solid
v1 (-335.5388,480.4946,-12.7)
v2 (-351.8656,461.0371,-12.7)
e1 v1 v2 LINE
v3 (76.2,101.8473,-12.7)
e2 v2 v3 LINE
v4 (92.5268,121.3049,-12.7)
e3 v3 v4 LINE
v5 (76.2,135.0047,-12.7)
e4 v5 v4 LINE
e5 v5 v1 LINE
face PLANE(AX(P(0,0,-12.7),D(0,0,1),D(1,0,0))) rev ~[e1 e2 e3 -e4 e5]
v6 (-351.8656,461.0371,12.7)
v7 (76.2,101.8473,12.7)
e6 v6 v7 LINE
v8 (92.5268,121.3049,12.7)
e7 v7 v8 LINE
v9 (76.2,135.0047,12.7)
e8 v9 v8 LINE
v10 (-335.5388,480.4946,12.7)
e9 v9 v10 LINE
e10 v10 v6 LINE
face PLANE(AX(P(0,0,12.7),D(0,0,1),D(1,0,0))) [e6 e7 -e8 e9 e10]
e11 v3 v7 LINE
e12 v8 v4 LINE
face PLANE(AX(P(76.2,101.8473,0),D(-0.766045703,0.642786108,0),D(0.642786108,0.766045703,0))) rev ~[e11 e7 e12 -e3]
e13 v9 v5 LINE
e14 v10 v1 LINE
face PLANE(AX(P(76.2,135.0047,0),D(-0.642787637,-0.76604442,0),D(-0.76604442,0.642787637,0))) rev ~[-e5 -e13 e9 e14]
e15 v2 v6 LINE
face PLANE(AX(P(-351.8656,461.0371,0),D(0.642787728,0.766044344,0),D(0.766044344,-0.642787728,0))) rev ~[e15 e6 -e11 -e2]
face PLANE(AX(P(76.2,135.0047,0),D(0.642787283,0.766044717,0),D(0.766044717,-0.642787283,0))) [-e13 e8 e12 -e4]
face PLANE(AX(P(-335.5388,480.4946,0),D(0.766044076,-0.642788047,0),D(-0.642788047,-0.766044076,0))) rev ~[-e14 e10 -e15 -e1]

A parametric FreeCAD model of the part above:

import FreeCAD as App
import Part
import Sketcher
Q = App.Units.Quantity

doc = App.newDocument("Part")
body = doc.addObject("PartDesign::Body", "Body")

sketch1 = doc.addObject("Sketcher::SketchObject", "Sketch")
body.addObject(sketch1)
sketch1.AttachmentSupport = (doc.XY_Plane, [""])
sketch1.MapMode = "FlatFace"
sketch1.addGeometry([
    Part.LineSegment(App.Vector(-336, 480, 0), App.Vector(-352, 461, 0)),
    Part.LineSegment(App.Vector(-352, 461, 0), App.Vector(76, 102, 0)),
    Part.LineSegment(App.Vector(76, 102, 0), App.Vector(93, 121, 0)),
    Part.LineSegment(App.Vector(93, 121, 0), App.Vector(76, 135, 0)),
    Part.LineSegment(App.Vector(76, 135, 0), App.Vector(-336, 480, 0)),
], False)
sketch1.addConstraint([
    Sketcher.Constraint("Coincident", 0, 2, 1, 1),
    Sketcher.Constraint("Coincident", 1, 2, 2, 1),
    Sketcher.Constraint("Coincident", 2, 2, 3, 1),
    Sketcher.Constraint("Coincident", 3, 2, 4, 1),
    Sketcher.Constraint("Coincident", 4, 2, 0, 1),
    Sketcher.Constraint("Perpendicular", 0, 1),
    Sketcher.Constraint("Perpendicular", 1, 2),
    Sketcher.Constraint("Perpendicular", 2, 3),
    Sketcher.Constraint("Parallel", 3, 4),
    Sketcher.Constraint("Vertical", 1, 2, 3, 2),
    Sketcher.Constraint("Distance", 1, Q("22 in")),
    Sketcher.Constraint("DistanceX", -1, 1, 1, 2, Q("3 in")),
    Sketcher.Constraint("Distance", 0, Q("1 in")),
    Sketcher.Constraint("Angle", 0, Q("-130 deg")),
    Sketcher.Constraint("DistanceY", -1, 1, 4, 2, Q("18.9171 in")),
])
pad1 = doc.addObject("PartDesign::Pad", "Pad")
body.addObject(pad1)
pad1.Profile = sketch1
pad1.Length = Q("1 in")
pad1.Midplane = True

doc.recompute()
